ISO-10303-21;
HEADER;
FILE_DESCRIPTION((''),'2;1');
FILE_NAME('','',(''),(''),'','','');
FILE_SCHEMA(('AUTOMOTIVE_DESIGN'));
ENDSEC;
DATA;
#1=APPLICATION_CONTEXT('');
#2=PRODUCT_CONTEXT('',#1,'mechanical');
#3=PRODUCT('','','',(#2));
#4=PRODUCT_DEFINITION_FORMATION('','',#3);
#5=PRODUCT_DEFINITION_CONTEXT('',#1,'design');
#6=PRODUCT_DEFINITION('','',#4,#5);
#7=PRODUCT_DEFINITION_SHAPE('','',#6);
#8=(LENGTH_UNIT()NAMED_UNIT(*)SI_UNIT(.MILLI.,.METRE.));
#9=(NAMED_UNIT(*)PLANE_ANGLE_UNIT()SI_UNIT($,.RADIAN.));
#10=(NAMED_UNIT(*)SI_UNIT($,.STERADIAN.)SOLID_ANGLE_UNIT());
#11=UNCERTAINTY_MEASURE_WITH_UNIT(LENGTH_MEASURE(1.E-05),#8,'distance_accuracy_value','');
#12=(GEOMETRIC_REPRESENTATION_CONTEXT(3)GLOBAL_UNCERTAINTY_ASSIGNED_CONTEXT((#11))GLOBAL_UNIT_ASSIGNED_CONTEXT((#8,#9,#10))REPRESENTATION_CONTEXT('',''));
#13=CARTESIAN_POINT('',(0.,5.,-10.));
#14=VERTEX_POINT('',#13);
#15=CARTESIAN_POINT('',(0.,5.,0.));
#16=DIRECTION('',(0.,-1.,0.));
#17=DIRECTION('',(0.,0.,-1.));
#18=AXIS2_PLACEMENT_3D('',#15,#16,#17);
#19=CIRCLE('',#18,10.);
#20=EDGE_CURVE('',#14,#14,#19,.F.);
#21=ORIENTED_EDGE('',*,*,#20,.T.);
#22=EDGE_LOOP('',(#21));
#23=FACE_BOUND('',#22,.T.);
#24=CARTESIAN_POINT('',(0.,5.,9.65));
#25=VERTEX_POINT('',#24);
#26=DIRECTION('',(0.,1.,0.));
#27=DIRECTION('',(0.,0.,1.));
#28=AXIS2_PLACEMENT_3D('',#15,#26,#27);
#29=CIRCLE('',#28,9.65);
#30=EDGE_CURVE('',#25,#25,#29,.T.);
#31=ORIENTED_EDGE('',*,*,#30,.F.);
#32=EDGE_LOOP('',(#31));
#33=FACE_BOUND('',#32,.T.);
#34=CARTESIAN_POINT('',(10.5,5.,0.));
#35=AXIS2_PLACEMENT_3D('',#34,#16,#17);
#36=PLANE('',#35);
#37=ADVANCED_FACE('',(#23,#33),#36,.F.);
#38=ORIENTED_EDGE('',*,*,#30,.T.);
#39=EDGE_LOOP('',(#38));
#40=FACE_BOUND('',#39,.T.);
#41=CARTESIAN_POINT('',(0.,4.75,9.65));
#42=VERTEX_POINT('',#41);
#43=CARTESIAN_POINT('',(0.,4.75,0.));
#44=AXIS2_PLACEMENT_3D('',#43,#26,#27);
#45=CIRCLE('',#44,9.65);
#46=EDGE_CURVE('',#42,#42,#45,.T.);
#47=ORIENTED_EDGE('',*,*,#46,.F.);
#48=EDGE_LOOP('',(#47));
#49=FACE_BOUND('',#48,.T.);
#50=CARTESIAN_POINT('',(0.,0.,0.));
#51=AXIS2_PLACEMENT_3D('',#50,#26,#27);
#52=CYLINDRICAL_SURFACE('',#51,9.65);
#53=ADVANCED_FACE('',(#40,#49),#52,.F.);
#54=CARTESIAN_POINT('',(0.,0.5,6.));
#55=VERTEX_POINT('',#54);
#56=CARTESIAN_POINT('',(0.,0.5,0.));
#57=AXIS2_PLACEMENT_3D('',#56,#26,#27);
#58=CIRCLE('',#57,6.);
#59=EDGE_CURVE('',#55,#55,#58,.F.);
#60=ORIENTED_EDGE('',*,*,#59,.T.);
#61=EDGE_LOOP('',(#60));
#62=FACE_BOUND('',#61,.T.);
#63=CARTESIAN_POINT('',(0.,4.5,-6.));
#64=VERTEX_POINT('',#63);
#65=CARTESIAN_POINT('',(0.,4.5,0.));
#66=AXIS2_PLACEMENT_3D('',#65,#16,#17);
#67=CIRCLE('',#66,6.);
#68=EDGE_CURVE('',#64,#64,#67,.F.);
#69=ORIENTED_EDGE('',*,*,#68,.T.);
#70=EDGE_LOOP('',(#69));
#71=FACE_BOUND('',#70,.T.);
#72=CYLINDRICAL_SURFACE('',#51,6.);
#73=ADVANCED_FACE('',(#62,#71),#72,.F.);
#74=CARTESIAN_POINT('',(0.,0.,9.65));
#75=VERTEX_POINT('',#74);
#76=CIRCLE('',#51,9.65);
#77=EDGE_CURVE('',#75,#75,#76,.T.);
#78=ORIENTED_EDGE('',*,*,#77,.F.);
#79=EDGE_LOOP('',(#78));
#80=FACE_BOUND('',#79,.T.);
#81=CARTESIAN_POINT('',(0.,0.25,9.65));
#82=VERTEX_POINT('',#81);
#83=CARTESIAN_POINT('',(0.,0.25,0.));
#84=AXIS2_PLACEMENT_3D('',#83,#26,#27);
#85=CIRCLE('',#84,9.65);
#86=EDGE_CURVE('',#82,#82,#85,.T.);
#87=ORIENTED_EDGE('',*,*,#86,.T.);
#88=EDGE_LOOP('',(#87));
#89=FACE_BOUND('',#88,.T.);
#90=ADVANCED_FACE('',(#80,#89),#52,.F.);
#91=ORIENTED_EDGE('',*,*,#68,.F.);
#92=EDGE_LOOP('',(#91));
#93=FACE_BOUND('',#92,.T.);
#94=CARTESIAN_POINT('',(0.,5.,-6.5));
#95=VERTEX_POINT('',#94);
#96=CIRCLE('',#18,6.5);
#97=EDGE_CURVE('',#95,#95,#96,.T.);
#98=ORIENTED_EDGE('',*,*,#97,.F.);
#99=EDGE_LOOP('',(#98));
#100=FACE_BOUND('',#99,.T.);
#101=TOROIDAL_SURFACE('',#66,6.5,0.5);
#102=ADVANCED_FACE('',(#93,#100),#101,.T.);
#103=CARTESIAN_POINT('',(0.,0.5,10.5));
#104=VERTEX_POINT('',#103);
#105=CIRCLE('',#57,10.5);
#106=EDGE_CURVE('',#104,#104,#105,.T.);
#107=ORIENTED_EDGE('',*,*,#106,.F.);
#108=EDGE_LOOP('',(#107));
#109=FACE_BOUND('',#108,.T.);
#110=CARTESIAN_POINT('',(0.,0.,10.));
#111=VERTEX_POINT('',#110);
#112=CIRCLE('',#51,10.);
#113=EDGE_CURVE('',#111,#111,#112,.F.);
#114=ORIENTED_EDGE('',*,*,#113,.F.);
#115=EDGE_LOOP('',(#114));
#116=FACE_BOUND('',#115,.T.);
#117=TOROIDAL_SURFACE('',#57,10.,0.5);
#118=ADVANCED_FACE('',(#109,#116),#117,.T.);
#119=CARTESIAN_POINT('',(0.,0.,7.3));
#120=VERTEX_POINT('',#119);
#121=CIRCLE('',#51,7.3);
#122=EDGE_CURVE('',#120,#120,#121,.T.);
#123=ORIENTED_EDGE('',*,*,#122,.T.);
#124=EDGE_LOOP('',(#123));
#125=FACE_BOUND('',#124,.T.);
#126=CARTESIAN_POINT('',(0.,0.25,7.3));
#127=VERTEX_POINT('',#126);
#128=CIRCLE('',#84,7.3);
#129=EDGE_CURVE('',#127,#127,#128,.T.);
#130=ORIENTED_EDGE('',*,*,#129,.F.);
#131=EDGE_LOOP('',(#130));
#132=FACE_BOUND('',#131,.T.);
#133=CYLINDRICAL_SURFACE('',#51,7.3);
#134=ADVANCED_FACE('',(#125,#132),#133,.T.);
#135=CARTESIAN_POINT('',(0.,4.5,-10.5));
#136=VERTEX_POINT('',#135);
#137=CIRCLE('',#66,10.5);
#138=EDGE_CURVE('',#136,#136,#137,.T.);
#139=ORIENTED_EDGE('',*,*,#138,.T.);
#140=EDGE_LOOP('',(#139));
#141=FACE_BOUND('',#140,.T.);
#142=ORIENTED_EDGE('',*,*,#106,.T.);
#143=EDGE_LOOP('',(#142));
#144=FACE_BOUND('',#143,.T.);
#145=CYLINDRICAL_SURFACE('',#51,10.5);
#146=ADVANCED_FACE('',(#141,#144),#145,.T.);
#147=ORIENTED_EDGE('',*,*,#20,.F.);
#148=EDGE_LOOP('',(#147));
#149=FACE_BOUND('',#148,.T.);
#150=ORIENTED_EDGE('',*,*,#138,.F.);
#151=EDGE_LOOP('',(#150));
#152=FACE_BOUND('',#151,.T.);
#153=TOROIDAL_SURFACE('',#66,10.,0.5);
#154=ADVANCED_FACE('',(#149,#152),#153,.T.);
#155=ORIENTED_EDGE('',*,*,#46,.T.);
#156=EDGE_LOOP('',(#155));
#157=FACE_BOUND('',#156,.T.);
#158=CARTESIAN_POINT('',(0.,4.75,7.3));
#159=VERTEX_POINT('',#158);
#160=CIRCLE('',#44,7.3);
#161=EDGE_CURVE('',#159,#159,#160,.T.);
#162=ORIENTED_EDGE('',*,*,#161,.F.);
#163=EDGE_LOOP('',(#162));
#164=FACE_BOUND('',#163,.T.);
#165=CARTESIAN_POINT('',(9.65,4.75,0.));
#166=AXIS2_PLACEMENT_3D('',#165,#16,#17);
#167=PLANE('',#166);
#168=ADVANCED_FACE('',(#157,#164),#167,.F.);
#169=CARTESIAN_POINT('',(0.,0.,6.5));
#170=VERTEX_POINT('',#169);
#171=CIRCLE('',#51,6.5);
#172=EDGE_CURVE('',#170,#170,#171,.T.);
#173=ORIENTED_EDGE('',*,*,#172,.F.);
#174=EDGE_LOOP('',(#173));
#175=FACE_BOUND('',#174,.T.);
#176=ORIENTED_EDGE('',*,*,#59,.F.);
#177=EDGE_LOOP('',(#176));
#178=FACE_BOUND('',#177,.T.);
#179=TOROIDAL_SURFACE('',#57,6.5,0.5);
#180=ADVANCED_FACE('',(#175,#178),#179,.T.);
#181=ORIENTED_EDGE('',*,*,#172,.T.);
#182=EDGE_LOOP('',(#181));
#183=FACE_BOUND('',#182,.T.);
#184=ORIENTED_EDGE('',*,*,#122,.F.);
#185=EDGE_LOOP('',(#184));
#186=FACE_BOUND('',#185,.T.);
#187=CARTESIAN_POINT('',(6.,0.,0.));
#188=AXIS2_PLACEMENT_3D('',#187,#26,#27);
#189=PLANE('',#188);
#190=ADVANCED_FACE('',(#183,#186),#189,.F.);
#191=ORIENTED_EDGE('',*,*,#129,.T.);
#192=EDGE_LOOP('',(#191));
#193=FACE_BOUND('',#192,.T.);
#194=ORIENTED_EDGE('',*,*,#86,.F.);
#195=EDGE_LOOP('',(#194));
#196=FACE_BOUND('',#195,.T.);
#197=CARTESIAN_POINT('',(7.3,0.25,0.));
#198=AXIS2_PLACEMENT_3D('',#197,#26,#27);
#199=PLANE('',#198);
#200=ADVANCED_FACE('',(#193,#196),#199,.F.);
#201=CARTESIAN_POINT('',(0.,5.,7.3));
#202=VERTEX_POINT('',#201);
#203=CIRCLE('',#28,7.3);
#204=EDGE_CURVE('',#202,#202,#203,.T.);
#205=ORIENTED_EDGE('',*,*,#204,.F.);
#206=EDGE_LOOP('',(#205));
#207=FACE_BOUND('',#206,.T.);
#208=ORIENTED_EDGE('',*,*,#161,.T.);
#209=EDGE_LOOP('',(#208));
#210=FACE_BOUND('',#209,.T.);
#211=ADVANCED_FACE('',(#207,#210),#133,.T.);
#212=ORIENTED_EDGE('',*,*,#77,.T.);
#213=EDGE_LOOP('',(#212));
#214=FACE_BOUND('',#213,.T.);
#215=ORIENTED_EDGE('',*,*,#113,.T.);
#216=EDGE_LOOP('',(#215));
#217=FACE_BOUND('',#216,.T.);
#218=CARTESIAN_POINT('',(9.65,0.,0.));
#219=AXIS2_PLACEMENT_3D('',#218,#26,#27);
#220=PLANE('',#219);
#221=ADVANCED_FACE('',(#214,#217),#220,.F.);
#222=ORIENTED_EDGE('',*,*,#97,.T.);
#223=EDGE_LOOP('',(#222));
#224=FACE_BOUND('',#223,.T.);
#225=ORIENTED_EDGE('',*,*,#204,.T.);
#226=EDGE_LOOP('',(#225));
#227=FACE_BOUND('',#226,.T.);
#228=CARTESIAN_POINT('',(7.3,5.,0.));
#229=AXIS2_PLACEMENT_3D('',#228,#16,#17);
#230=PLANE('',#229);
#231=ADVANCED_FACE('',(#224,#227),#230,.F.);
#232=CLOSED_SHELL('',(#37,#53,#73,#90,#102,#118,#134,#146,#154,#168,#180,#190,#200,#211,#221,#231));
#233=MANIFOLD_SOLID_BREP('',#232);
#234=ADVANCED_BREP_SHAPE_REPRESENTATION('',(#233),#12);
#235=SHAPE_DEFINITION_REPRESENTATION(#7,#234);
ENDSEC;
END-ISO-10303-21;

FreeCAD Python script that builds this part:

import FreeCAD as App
import Part
import Sketcher
Q = App.Units.Quantity


def edges_at(feature, points):
    """Names of the edges that pass closest to the given points."""
    edges = feature.Shape.Edges
    near = lambda p: min(range(len(edges)), key=lambda i: edges[i].distToShape(Part.Vertex(*p))[0])
    return sorted({f"Edge{near(p) + 1}" for p in points})

doc = App.newDocument("Part")
body = doc.addObject("PartDesign::Body", "Body")

# Sketch on XY plane
sketch1 = body.newObject("Sketcher::SketchObject", "Sketch")
sketch1.AttachmentSupport = (doc.getObject("XY_Plane"), [""])
sketch1.MapMode = "FlatFace"
sketch1.addGeometry(Part.LineSegment(App.Vector(6, 0, 0), App.Vector(7.3, 0, 0)), False)
sketch1.addGeometry(Part.LineSegment(App.Vector(7.3, 0, 0), App.Vector(7.3, 0.25, 0)), False)
sketch1.addGeometry(Part.LineSegment(App.Vector(7.3, 0.25, 0), App.Vector(9.65, 0.25, 0)), False)
sketch1.addGeometry(Part.LineSegment(App.Vector(9.65, 0.25, 0), App.Vector(9.65, 0, 0)), False)
sketch1.addGeometry(Part.LineSegment(App.Vector(9.65, 0, 0), App.Vector(10.5, 0, 0)), False)
sketch1.addGeometry(Part.LineSegment(App.Vector(10.5, 0, 0), App.Vector(10.5, 5, 0)), False)
sketch1.addGeometry(Part.LineSegment(App.Vector(10.5, 5, 0), App.Vector(9.65, 5, 0)), False)
sketch1.addGeometry(Part.LineSegment(App.Vector(9.65, 5, 0), App.Vector(9.65, 4.75, 0)), False)
sketch1.addGeometry(Part.LineSegment(App.Vector(9.65, 4.75, 0), App.Vector(7.3, 4.75, 0)), False)
sketch1.addGeometry(Part.LineSegment(App.Vector(7.3, 4.75, 0), App.Vector(7.3, 5, 0)), False)
sketch1.addGeometry(Part.LineSegment(App.Vector(7.3, 5, 0), App.Vector(6, 5, 0)), False)
sketch1.addGeometry(Part.LineSegment(App.Vector(6, 5, 0), App.Vector(6, 0, 0)), False)
sketch1.addConstraint(Sketcher.Constraint("Coincident", 0, 2, 1, 1))
sketch1.addConstraint(Sketcher.Constraint("Coincident", 1, 2, 2, 1))
sketch1.addConstraint(Sketcher.Constraint("Coincident", 2, 2, 3, 1))
sketch1.addConstraint(Sketcher.Constraint("Coincident", 3, 2, 4, 1))
sketch1.addConstraint(Sketcher.Constraint("Coincident", 4, 2, 5, 1))
sketch1.addConstraint(Sketcher.Constraint("Coincident", 5, 2, 6, 1))
sketch1.addConstraint(Sketcher.Constraint("Coincident", 6, 2, 7, 1))
sketch1.addConstraint(Sketcher.Constraint("Coincident", 7, 2, 8, 1))
sketch1.addConstraint(Sketcher.Constraint("Coincident", 8, 2, 9, 1))
sketch1.addConstraint(Sketcher.Constraint("Coincident", 9, 2, 10, 1))
sketch1.addConstraint(Sketcher.Constraint("Coincident", 10, 2, 11, 1))
sketch1.addConstraint(Sketcher.Constraint("Coincident", 11, 2, 0, 1))
sketch1.addConstraint(Sketcher.Constraint("Horizontal", 0))
sketch1.addConstraint(Sketcher.Constraint("Vertical", 1))
sketch1.addConstraint(Sketcher.Constraint("Horizontal", 2))
sketch1.addConstraint(Sketcher.Constraint("Vertical", 3))
sketch1.addConstraint(Sketcher.Constraint("Horizontal", 4))
sketch1.addConstraint(Sketcher.Constraint("Vertical", 5))
sketch1.addConstraint(Sketcher.Constraint("Horizontal", 6))
sketch1.addConstraint(Sketcher.Constraint("Vertical", 7))
sketch1.addConstraint(Sketcher.Constraint("Horizontal", 8))
sketch1.addConstraint(Sketcher.Constraint("Vertical", 9))
sketch1.addConstraint(Sketcher.Constraint("Horizontal", 10))
sketch1.addConstraint(Sketcher.Constraint("Vertical", 11))
sketch1.addConstraint(Sketcher.Constraint("PointOnObject", 0, 2, -1))
sketch1.addConstraint(Sketcher.Constraint("PointOnObject", 3, 2, -1))
sketch1.addConstraint(Sketcher.Constraint("Horizontal", 6, 2, 9, 2))
sketch1.addConstraint(Sketcher.Constraint("Vertical", 3, 2, 6, 2))
sketch1.addConstraint(Sketcher.Constraint("Vertical", 1, 2, 8, 2))
sketch1.addConstraint(Sketcher.Constraint("Equal", 3, 7))
sketch1.addConstraint(Sketcher.Constraint("DistanceY", 5, 1, 5, 2, Q("5 mm")))
sketch1.addConstraint(Sketcher.Constraint("DistanceX", 0, 1, 0, 2, Q("1.3 mm")))
sketch1.addConstraint(Sketcher.Constraint("DistanceX", -1, 1, 10, 2, Q("6 mm")))
sketch1.addConstraint(Sketcher.Constraint("DistanceX", 2, 1, 2, 2, Q("2.35 mm")))
sketch1.addConstraint(Sketcher.Constraint("DistanceX", 4, 1, 4, 2, Q("0.85 mm")))
sketch1.addConstraint(Sketcher.Constraint("DistanceY", 1, 1, 1, 2, Q("0.25 mm")))
revolution = body.newObject("PartDesign::Revolution", "Revolution")
revolution.Profile = sketch1
revolution.ReferenceAxis = (sketch1, ["V_Axis"])
revolution.Angle = 360
doc.recompute()

fillet = body.newObject("PartDesign::Fillet", "Fillet")
fillet.Base = (revolution, edges_at(revolution, [
    (0, 5, -10.5),
    (0, 0, -10.5),
    (0, 0, -6),
    (0, 5, -6),
]))
fillet.Radius = 0.5

doc.recompute()
